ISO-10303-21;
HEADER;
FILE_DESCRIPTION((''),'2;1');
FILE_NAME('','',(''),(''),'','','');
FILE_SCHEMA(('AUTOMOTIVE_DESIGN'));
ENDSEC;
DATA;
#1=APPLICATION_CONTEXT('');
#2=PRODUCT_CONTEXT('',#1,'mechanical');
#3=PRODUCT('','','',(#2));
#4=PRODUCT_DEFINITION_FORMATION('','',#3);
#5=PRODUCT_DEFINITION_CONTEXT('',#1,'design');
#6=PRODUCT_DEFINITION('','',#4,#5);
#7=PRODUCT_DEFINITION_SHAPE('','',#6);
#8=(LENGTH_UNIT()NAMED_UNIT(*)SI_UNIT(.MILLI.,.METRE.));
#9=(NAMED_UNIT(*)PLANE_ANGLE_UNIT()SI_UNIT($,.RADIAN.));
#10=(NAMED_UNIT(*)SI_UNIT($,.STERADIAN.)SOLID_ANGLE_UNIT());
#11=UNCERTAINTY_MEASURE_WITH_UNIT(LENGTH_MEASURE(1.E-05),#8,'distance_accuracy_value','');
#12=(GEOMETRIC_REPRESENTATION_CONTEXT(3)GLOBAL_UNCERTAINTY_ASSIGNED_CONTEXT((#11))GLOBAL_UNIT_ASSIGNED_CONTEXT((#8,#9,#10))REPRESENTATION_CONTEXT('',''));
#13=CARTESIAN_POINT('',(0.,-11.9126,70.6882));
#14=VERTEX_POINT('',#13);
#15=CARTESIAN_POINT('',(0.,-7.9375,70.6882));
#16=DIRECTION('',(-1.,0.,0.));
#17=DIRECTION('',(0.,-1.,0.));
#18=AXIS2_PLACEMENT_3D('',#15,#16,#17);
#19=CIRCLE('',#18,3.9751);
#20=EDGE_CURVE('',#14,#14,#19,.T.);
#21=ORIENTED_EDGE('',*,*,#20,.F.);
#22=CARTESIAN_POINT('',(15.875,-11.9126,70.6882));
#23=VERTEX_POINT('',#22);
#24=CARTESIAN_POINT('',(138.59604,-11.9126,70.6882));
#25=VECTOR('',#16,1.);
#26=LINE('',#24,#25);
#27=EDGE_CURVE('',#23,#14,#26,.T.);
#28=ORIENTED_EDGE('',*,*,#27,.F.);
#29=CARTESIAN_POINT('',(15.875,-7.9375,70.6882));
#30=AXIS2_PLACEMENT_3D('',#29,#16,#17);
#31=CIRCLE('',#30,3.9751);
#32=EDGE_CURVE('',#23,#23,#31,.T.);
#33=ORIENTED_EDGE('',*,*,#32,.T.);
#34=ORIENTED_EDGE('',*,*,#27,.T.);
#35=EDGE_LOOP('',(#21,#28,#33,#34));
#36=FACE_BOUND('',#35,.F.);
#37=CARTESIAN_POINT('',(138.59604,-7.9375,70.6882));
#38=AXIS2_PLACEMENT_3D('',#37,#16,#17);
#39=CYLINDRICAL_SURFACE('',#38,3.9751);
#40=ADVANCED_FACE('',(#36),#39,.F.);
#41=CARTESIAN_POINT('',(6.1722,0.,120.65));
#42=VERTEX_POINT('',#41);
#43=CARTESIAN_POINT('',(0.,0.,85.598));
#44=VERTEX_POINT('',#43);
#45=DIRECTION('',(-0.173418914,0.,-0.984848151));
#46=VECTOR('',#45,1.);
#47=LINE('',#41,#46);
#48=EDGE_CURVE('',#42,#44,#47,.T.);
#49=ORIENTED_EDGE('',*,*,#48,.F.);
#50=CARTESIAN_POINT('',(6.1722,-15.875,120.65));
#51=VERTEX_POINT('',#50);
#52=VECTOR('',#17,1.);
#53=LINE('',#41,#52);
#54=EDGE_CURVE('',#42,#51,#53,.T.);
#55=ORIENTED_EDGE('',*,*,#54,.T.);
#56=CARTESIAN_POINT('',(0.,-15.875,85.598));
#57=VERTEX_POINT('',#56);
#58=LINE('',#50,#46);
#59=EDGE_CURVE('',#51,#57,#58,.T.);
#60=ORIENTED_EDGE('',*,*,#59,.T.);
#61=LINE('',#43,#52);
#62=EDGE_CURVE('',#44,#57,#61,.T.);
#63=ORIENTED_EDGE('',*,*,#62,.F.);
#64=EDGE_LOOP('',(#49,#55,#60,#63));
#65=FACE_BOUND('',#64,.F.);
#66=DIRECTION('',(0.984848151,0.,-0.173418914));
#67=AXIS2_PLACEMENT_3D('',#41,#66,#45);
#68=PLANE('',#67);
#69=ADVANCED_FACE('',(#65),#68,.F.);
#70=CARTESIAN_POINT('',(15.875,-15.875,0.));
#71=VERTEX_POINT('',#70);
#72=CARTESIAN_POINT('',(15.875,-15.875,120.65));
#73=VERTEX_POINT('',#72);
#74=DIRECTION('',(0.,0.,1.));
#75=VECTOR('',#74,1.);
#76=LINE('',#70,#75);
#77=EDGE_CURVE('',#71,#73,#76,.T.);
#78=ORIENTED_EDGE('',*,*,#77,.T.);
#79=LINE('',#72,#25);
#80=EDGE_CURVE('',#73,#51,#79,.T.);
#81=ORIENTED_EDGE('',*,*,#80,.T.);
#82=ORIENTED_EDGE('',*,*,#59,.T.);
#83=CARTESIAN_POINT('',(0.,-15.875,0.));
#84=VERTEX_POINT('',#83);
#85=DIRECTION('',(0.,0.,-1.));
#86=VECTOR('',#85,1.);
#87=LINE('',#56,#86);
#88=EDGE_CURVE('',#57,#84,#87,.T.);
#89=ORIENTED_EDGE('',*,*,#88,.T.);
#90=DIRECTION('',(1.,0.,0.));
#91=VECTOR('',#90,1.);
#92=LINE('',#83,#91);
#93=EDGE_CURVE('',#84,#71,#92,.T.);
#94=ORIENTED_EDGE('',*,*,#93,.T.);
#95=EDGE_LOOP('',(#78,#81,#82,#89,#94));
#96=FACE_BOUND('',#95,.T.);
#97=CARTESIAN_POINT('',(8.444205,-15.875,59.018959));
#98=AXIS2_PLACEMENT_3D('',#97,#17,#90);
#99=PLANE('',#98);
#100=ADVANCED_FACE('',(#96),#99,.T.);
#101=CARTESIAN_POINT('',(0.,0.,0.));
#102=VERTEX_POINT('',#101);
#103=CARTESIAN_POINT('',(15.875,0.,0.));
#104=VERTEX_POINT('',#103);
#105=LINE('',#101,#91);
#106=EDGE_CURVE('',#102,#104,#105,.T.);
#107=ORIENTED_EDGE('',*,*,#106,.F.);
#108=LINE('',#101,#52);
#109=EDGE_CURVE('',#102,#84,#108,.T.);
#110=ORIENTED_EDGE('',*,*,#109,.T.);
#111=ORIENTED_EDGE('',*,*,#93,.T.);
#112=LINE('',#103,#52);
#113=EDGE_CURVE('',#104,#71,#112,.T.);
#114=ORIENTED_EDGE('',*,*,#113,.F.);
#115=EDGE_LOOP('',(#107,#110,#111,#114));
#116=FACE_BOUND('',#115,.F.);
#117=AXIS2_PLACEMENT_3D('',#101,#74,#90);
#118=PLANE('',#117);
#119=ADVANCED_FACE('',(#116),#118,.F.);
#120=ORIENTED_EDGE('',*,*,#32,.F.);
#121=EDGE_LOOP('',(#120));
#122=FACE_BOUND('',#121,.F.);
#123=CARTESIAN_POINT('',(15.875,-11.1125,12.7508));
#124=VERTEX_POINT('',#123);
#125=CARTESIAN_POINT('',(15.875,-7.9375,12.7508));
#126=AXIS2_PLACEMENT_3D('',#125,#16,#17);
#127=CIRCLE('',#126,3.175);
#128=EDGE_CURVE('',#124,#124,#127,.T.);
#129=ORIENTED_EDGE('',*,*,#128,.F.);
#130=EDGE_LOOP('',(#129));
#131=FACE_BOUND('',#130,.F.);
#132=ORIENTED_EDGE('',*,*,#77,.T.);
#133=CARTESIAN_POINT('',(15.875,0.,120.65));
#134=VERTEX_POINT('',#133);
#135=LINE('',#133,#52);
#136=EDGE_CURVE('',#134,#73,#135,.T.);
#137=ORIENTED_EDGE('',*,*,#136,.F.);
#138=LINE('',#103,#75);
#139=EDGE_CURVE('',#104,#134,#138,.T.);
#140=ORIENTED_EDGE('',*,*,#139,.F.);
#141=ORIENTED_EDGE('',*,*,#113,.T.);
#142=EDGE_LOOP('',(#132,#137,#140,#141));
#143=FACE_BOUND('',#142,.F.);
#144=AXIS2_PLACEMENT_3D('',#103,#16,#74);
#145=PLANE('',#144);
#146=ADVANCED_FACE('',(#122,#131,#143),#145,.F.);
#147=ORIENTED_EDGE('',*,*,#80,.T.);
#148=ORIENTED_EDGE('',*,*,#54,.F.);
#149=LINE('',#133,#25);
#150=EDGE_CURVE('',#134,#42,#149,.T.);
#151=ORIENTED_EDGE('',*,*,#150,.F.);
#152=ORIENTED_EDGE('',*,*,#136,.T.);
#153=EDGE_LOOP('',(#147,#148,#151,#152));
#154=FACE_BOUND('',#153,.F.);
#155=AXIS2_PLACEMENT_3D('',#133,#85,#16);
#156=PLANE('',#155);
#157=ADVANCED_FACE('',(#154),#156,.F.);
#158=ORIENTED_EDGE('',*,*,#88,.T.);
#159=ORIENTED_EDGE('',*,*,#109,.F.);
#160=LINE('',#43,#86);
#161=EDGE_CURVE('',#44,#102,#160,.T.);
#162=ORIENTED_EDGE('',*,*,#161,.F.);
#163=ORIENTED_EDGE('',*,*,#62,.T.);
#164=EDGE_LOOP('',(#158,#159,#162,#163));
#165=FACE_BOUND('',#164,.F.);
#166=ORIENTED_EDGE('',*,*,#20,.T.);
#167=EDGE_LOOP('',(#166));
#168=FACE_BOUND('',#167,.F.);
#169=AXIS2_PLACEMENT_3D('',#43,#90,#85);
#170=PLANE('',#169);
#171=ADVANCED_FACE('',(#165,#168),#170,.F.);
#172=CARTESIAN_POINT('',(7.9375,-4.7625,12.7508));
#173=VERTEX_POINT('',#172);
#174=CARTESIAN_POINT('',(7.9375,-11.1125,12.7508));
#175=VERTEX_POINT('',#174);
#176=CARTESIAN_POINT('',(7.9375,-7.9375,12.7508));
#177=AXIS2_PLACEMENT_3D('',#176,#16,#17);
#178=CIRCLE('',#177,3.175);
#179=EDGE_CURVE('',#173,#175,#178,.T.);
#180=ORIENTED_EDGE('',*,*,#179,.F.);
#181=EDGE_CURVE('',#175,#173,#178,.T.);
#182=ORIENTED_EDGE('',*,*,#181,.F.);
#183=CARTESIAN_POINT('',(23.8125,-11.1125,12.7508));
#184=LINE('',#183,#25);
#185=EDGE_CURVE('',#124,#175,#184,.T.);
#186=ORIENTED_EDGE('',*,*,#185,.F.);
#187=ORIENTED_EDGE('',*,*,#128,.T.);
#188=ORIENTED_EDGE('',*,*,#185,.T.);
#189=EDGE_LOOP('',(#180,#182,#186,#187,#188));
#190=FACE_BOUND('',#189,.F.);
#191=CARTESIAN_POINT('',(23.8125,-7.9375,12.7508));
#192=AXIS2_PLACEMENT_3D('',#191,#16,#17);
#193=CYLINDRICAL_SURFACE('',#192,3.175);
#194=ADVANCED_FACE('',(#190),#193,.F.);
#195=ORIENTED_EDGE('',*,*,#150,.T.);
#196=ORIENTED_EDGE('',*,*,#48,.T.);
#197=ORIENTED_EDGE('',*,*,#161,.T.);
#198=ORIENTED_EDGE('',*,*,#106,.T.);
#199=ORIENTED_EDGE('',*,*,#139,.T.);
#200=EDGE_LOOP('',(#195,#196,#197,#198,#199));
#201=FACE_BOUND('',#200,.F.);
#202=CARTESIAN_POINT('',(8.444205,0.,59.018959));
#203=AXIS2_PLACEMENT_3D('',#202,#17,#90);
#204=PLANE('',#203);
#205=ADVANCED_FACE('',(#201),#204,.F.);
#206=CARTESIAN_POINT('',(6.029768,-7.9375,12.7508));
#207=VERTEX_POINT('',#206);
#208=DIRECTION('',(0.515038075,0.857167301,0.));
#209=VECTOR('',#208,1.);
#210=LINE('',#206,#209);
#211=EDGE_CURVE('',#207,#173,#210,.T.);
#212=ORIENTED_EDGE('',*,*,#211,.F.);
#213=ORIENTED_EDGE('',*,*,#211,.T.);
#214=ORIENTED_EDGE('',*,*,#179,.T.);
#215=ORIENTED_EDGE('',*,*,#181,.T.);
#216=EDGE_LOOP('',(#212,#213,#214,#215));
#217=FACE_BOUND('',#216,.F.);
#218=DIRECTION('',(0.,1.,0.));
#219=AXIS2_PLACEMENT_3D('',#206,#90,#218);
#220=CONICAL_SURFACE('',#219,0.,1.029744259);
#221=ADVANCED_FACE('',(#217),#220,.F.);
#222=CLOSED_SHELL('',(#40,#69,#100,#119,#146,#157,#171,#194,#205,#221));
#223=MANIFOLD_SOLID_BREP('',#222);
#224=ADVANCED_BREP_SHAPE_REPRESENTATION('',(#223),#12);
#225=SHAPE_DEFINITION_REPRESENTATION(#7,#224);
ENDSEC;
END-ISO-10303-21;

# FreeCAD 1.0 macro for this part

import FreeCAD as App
import Part
import Sketcher
from FreeCAD import Vector
Q = App.Units.Quantity

doc = App.newDocument("Part")
params = doc.addObject("Spreadsheet::Sheet", "Params")
for row, (alias, value) in enumerate([
    ("sketch1_height", "3.37 in"),
    ("sketch1_height2", "4.75 in"),
    ("sketch1_width", "0.625 in"),
    ("sketch1_width2", "0.382 in"),
    ("pad1_length", "0.625 in"),
    ("sketch2_diameter", "0.25 in"),
    ("hole_diameter", "0.25 in"),
    ("hole_depth", "0.3125 in"),
    ("sketch3_diameter", "0.313 in"),
    ("hole2_diameter", "0.313 in"),
], start=1):
    params.set(f"A{row}", alias)
    params.set(f"B{row}", "=" + value)
    params.setAlias(f"B{row}", alias)

body = doc.addObject("PartDesign::Body", "Body")

# Sketch on XZ plane
sketch1 = body.newObject("Sketcher::SketchObject", "Sketch")
sketch1.AttachmentSupport = (doc.getObject("XZ_Plane"), [""])
sketch1.MapMode = "FlatFace"
sketch1.addGeometry(Part.LineSegment(Vector(0, 86, 0), Vector(0, 0, 0)), False)
sketch1.addGeometry(Part.LineSegment(Vector(0, 0, 0), Vector(16, 0, 0)), False)
sketch1.addGeometry(Part.LineSegment(Vector(16, 0, 0), Vector(16, 121, 0)), False)
sketch1.addGeometry(Part.LineSegment(Vector(16, 121, 0), Vector(6, 121, 0)), False)
sketch1.addGeometry(Part.LineSegment(Vector(6, 121, 0), Vector(0, 86, 0)), False)
sketch1.addConstraint(Sketcher.Constraint("Coincident", 0, 2, 1, 1))
sketch1.addConstraint(Sketcher.Constraint("Coincident", 1, 2, 2, 1))
sketch1.addConstraint(Sketcher.Constraint("Coincident", 2, 2, 3, 1))
sketch1.addConstraint(Sketcher.Constraint("Coincident", 3, 2, 4, 1))
sketch1.addConstraint(Sketcher.Constraint("Coincident", 4, 2, 0, 1))
sketch1.addConstraint(Sketcher.Constraint("Vertical", 0))
sketch1.addConstraint(Sketcher.Constraint("Horizontal", 1))
sketch1.addConstraint(Sketcher.Constraint("Vertical", 2))
sketch1.addConstraint(Sketcher.Constraint("Horizontal", 3))
sketch1.addConstraint(Sketcher.Constraint("Coincident", 0, 2, -1, 1))
sketch1.addConstraint(Sketcher.Constraint("DistanceY", 0, 2, 0, 1, Q("3.37 in")))
sketch1.addConstraint(Sketcher.Constraint("DistanceY", 2, 1, 2, 2, Q("4.75 in")))
sketch1.addConstraint(Sketcher.Constraint("DistanceX", 1, 1, 1, 2, Q("0.625 in")))
sketch1.addConstraint(Sketcher.Constraint("DistanceX", 3, 2, 3, 1, Q("0.382 in")))
sketch1.setExpression("Constraints[10]", "Params.sketch1_height")
sketch1.setExpression("Constraints[11]", "Params.sketch1_height2")
sketch1.setExpression("Constraints[12]", "Params.sketch1_width")
sketch1.setExpression("Constraints[13]", "Params.sketch1_width2")
pad1 = body.newObject("PartDesign::Pad", "Pad")
pad1.Profile = sketch1
pad1.setExpression("Length", "Params.pad1_length")

# Sketch on YZ plane
sketch2 = body.newObject("Sketcher::SketchObject", "Sketch001")
sketch2.AttachmentSupport = (doc.getObject("YZ_Plane"), [""])
sketch2.MapMode = "FlatFace"
sketch2.AttachmentOffset = App.Placement(Vector(0, 0, 0.625 * 25.4), App.Rotation())
sketch2.addGeometry(Part.Circle(Vector(-7.9, 12.8, 0), Vector(0, 0, 1), 3.2), False)
sketch2.addConstraint(Sketcher.Constraint("Diameter", 0, Q("0.25 in")))
sketch2.addConstraint(Sketcher.Constraint("DistanceX", 0, 3, -1, 1, Q("0.3125 in")))
sketch2.addConstraint(Sketcher.Constraint("DistanceY", -1, 1, 0, 3, Q("0.502 in")))
sketch2.setExpression("Constraints[0]", "Params.sketch2_diameter")
doc.recompute()
hole = body.newObject("PartDesign::Hole", "Hole")
hole.Profile = sketch2
hole.ThreadType = "None"
hole.setExpression("Diameter", "Params.hole_diameter")
hole.DepthType = "Dimension"
hole.setExpression("Depth", "Params.hole_depth")
hole.DrillPoint = "Angled"
hole.DrillPointAngle = 118

# Sketch on YZ plane
sketch3 = body.newObject("Sketcher::SketchObject", "Sketch002")
sketch3.AttachmentSupport = (doc.getObject("YZ_Plane"), [""])
sketch3.MapMode = "FlatFace"
sketch3.AttachmentOffset = App.Placement(Vector(0, 0, 0.625 * 25.4), App.Rotation())
sketch3.addGeometry(Part.Circle(Vector(-7.9, 70.7, 0), Vector(0, 0, 1), 4), False)
sketch3.addConstraint(Sketcher.Constraint("Diameter", 0, Q("0.313 in")))
sketch3.addConstraint(Sketcher.Constraint("DistanceX", 0, 3, -1, 1, Q("0.3125 in")))
sketch3.addConstraint(Sketcher.Constraint("DistanceY", -1, 1, 0, 3, Q("2.783 in")))
sketch3.setExpression("Constraints[0]", "Params.sketch3_diameter")
doc.recompute()
hole2 = body.newObject("PartDesign::Hole", "Hole001")
hole2.Profile = sketch3
hole2.ThreadType = "None"
hole2.setExpression("Diameter", "Params.hole2_diameter")
hole2.DepthType = "ThroughAll"

doc.recompute()
